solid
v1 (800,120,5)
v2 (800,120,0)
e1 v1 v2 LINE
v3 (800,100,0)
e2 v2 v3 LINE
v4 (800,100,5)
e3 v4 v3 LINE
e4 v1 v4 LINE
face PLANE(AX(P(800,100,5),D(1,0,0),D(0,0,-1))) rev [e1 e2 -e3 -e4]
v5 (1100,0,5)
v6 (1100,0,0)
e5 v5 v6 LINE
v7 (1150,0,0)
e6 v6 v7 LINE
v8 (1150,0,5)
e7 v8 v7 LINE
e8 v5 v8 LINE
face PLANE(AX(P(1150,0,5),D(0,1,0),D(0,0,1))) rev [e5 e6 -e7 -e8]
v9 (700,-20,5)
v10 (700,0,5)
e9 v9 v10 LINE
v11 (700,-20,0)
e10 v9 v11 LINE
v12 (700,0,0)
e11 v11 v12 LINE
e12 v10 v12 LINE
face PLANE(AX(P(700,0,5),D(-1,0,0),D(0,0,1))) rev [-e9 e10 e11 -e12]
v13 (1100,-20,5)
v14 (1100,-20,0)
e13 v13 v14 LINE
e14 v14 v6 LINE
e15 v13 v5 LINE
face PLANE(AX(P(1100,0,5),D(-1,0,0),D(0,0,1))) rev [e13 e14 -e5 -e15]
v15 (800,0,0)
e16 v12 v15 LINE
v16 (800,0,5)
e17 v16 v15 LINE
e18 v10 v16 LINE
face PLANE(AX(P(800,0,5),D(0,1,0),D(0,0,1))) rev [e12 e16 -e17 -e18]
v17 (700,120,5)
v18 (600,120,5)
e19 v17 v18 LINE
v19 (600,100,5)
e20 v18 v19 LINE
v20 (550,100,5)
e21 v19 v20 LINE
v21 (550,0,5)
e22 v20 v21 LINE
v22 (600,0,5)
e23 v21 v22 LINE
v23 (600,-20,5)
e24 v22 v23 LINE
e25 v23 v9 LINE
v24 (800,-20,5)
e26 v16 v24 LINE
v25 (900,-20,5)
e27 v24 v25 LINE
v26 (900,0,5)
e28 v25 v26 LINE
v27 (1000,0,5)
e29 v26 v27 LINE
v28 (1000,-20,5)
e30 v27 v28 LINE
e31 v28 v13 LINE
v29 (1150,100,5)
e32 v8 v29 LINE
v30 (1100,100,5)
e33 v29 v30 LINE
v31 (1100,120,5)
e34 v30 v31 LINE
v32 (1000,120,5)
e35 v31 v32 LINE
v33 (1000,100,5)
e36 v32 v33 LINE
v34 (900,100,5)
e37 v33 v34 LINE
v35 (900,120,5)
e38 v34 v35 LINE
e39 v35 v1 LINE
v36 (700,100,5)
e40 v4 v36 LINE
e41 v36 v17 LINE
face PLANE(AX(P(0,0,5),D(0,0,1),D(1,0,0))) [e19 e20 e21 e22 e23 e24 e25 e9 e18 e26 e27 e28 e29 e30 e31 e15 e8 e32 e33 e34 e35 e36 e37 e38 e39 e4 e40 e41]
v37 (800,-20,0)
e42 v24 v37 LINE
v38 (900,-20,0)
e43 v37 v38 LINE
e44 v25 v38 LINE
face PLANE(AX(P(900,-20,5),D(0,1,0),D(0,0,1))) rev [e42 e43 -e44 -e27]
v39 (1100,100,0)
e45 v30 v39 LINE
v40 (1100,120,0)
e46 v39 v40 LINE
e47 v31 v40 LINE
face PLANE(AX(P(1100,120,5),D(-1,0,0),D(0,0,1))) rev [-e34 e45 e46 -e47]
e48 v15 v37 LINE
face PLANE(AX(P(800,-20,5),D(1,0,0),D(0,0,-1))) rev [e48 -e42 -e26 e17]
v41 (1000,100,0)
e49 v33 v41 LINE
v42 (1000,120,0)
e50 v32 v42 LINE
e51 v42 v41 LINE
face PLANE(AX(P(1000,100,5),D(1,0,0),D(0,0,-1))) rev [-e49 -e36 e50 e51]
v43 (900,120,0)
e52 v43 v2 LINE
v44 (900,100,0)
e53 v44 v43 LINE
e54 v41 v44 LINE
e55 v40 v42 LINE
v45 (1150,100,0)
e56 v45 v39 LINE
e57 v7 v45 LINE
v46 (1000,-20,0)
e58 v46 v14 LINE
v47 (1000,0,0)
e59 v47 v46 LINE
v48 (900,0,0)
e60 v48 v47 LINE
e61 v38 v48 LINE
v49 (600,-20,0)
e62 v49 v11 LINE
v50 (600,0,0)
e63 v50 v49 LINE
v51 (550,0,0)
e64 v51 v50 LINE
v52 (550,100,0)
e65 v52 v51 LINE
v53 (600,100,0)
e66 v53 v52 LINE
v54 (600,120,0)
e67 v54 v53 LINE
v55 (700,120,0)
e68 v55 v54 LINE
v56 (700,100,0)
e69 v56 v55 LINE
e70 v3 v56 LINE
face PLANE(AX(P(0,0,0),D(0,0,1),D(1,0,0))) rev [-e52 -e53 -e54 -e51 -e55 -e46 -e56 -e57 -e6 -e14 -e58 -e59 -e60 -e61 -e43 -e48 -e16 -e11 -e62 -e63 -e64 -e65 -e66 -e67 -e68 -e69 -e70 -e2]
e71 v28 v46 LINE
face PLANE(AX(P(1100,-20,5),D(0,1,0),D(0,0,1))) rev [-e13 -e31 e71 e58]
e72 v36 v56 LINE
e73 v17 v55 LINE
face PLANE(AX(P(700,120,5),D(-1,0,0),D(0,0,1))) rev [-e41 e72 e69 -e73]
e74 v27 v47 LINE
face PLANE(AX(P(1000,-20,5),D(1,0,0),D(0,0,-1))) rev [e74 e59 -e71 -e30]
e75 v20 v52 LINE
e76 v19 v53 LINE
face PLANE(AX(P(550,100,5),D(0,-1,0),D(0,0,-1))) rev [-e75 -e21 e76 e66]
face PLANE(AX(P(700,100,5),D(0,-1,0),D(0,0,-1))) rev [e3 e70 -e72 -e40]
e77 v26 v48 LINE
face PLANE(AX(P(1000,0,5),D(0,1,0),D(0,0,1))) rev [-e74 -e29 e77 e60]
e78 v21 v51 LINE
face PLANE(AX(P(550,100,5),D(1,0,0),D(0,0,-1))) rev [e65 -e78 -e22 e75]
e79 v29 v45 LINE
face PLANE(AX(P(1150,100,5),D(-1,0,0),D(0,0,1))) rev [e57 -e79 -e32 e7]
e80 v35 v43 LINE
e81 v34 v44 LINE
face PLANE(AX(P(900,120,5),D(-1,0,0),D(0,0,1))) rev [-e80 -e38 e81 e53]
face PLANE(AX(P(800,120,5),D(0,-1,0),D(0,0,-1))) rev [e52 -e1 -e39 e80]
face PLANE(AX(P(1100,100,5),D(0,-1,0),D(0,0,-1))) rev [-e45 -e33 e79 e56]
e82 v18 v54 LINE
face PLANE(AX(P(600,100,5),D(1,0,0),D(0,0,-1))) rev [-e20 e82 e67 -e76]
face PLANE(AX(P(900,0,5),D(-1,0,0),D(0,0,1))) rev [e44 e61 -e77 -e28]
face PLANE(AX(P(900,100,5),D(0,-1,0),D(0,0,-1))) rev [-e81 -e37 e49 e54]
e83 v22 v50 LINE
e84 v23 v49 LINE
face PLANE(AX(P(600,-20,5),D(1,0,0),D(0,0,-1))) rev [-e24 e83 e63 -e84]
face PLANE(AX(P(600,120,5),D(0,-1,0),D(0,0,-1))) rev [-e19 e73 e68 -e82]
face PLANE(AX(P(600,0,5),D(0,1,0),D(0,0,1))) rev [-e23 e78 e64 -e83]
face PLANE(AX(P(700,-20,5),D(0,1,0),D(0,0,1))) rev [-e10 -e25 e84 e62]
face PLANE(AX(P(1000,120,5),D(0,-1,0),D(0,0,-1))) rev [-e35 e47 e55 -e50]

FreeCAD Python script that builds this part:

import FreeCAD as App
import Part
import Sketcher

doc = App.newDocument("Part")
body = doc.addObject("PartDesign::Body", "Body")

sketch1 = body.newObject("Sketcher::SketchObject", "Sketch")
sketch1.AttachmentSupport = (doc.getObject("XY_Plane"), [""])
sketch1.MapMode = "FlatFace"
sketch1.addGeometry(Part.LineSegment(App.Vector(600, 100, 0), App.Vector(550, 100, 0)), False)
sketch1.addGeometry(Part.LineSegment(App.Vector(550, 100, 0), App.Vector(550, 0, 0)), False)
sketch1.addGeometry(Part.LineSegment(App.Vector(550, 0, 0), App.Vector(600, 0, 0)), False)
sketch1.addGeometry(Part.LineSegment(App.Vector(600, 0, 0), App.Vector(600, -20, 0)), False)
sketch1.addGeometry(Part.LineSegment(App.Vector(600, -20, 0), App.Vector(700, -20, 0)), False)
sketch1.addGeometry(Part.LineSegment(App.Vector(700, -20, 0), App.Vector(700, 0, 0)), False)
sketch1.addGeometry(Part.LineSegment(App.Vector(700, 0, 0), App.Vector(800, 0, 0)), False)
sketch1.addGeometry(Part.LineSegment(App.Vector(800, 0, 0), App.Vector(800, -20, 0)), False)
sketch1.addGeometry(Part.LineSegment(App.Vector(800, -20, 0), App.Vector(900, -20, 0)), False)
sketch1.addGeometry(Part.LineSegment(App.Vector(900, -20, 0), App.Vector(900, 0, 0)), False)
sketch1.addGeometry(Part.LineSegment(App.Vector(900, 0, 0), App.Vector(1000, 0, 0)), False)
sketch1.addGeometry(Part.LineSegment(App.Vector(1000, 0, 0), App.Vector(1000, -20, 0)), False)
sketch1.addGeometry(Part.LineSegment(App.Vector(1000, -20, 0), App.Vector(1100, -20, 0)), False)
sketch1.addGeometry(Part.LineSegment(App.Vector(1100, -20, 0), App.Vector(1100, 0, 0)), False)
sketch1.addGeometry(Part.LineSegment(App.Vector(1100, 0, 0), App.Vector(1150, 0, 0)), False)
sketch1.addGeometry(Part.LineSegment(App.Vector(1150, 0, 0), App.Vector(1150, 100, 0)), False)
sketch1.addGeometry(Part.LineSegment(App.Vector(1150, 100, 0), App.Vector(1100, 100, 0)), False)
sketch1.addGeometry(Part.LineSegment(App.Vector(1100, 100, 0), App.Vector(1100, 120, 0)), False)
sketch1.addGeometry(Part.LineSegment(App.Vector(1100, 120, 0), App.Vector(1000, 120, 0)), False)
sketch1.addGeometry(Part.LineSegment(App.Vector(1000, 120, 0), App.Vector(1000, 100, 0)), False)
sketch1.addGeometry(Part.LineSegment(App.Vector(1000, 100, 0), App.Vector(900, 100, 0)), False)
sketch1.addGeometry(Part.LineSegment(App.Vector(900, 100, 0), App.Vector(900, 120, 0)), False)
sketch1.addGeometry(Part.LineSegment(App.Vector(900, 120, 0), App.Vector(800, 120, 0)), False)
sketch1.addGeometry(Part.LineSegment(App.Vector(800, 120, 0), App.Vector(800, 100, 0)), False)
sketch1.addGeometry(Part.LineSegment(App.Vector(800, 100, 0), App.Vector(700, 100, 0)), False)
sketch1.addGeometry(Part.LineSegment(App.Vector(700, 100, 0), App.Vector(700, 120, 0)), False)
sketch1.addGeometry(Part.LineSegment(App.Vector(700, 120, 0), App.Vector(600, 120, 0)), False)
sketch1.addGeometry(Part.LineSegment(App.Vector(600, 120, 0), App.Vector(600, 100, 0)), False)
sketch1.addConstraint(Sketcher.Constraint("Coincident", 0, 2, 1, 1))
sketch1.addConstraint(Sketcher.Constraint("Coincident", 1, 2, 2, 1))
sketch1.addConstraint(Sketcher.Constraint("Coincident", 2, 2, 3, 1))
sketch1.addConstraint(Sketcher.Constraint("Coincident", 3, 2, 4, 1))
sketch1.addConstraint(Sketcher.Constraint("Coincident", 4, 2, 5, 1))
sketch1.addConstraint(Sketcher.Constraint("Coincident", 5, 2, 6, 1))
sketch1.addConstraint(Sketcher.Constraint("Coincident", 6, 2, 7, 1))
sketch1.addConstraint(Sketcher.Constraint("Coincident", 7, 2, 8, 1))
sketch1.addConstraint(Sketcher.Constraint("Coincident", 8, 2, 9, 1))
sketch1.addConstraint(Sketcher.Constraint("Coincident", 9, 2, 10, 1))
sketch1.addConstraint(Sketcher.Constraint("Coincident", 10, 2, 11, 1))
sketch1.addConstraint(Sketcher.Constraint("Coincident", 11, 2, 12, 1))
sketch1.addConstraint(Sketcher.Constraint("Coincident", 12, 2, 13, 1))
sketch1.addConstraint(Sketcher.Constraint("Coincident", 13, 2, 14, 1))
sketch1.addConstraint(Sketcher.Constraint("Coincident", 14, 2, 15, 1))
sketch1.addConstraint(Sketcher.Constraint("Coincident", 15, 2, 16, 1))
sketch1.addConstraint(Sketcher.Constraint("Coincident", 16, 2, 17, 1))
sketch1.addConstraint(Sketcher.Constraint("Coincident", 17, 2, 18, 1))
sketch1.addConstraint(Sketcher.Constraint("Coincident", 18, 2, 19, 1))
sketch1.addConstraint(Sketcher.Constraint("Coincident", 19, 2, 20, 1))
sketch1.addConstraint(Sketcher.Constraint("Coincident", 20, 2, 21, 1))
sketch1.addConstraint(Sketcher.Constraint("Coincident", 21, 2, 22, 1))
sketch1.addConstraint(Sketcher.Constraint("Coincident", 22, 2, 23, 1))
sketch1.addConstraint(Sketcher.Constraint("Coincident", 23, 2, 24, 1))
sketch1.addConstraint(Sketcher.Constraint("Coincident", 24, 2, 25, 1))
sketch1.addConstraint(Sketcher.Constraint("Coincident", 25, 2, 26, 1))
sketch1.addConstraint(Sketcher.Constraint("Coincident", 26, 2, 27, 1))
sketch1.addConstraint(Sketcher.Constraint("Coincident", 27, 2, 0, 1))
sketch1.addConstraint(Sketcher.Constraint("Horizontal", 0))
sketch1.addConstraint(Sketcher.Constraint("Vertical", 1))
sketch1.addConstraint(Sketcher.Constraint("Horizontal", 2))
sketch1.addConstraint(Sketcher.Constraint("Vertical", 3))
sketch1.addConstraint(Sketcher.Constraint("Horizontal", 4))
sketch1.addConstraint(Sketcher.Constraint("Vertical", 5))
sketch1.addConstraint(Sketcher.Constraint("Horizontal", 6))
sketch1.addConstraint(Sketcher.Constraint("Vertical", 7))
sketch1.addConstraint(Sketcher.Constraint("Horizontal", 8))
sketch1.addConstraint(Sketcher.Constraint("Vertical", 9))
sketch1.addConstraint(Sketcher.Constraint("Horizontal", 10))
sketch1.addConstraint(Sketcher.Constraint("Vertical", 11))
sketch1.addConstraint(Sketcher.Constraint("Horizontal", 12))
sketch1.addConstraint(Sketcher.Constraint("Vertical", 13))
sketch1.addConstraint(Sketcher.Constraint("Horizontal", 14))
sketch1.addConstraint(Sketcher.Constraint("Vertical", 15))
sketch1.addConstraint(Sketcher.Constraint("Horizontal", 16))
sketch1.addConstraint(Sketcher.Constraint("Vertical", 17))
sketch1.addConstraint(Sketcher.Constraint("Horizontal", 18))
sketch1.addConstraint(Sketcher.Constraint("Vertical", 19))
sketch1.addConstraint(Sketcher.Constraint("Horizontal", 20))
sketch1.addConstraint(Sketcher.Constraint("Vertical", 21))
sketch1.addConstraint(Sketcher.Constraint("Horizontal", 22))
sketch1.addConstraint(Sketcher.Constraint("Vertical", 23))
sketch1.addConstraint(Sketcher.Constraint("Horizontal", 24))
sketch1.addConstraint(Sketcher.Constraint("Vertical", 25))
sketch1.addConstraint(Sketcher.Constraint("Horizontal", 26))
sketch1.addConstraint(Sketcher.Constraint("Vertical", 27))
sketch1.addConstraint(Sketcher.Constraint("PointOnObject", 1, 2, -1))
sketch1.addConstraint(Sketcher.Constraint("PointOnObject", 5, 2, -1))
sketch1.addConstraint(Sketcher.Constraint("PointOnObject", 9, 2, -1))
sketch1.addConstraint(Sketcher.Constraint("PointOnObject", 13, 2, -1))
sketch1.addConstraint(Sketcher.Constraint("Horizontal", 4, 2, 7, 2))
sketch1.addConstraint(Sketcher.Constraint("Horizontal", 8, 2, 11, 2))
sketch1.addConstraint(Sketcher.Constraint("Horizontal", 0, 2, 15, 2))
sketch1.addConstraint(Sketcher.Constraint("Horizontal", 16, 2, 19, 2))
sketch1.addConstraint(Sketcher.Constraint("Horizontal", 18, 2, 21, 2))
sketch1.addConstraint(Sketcher.Constraint("Horizontal", 20, 2, 23, 2))
sketch1.addConstraint(Sketcher.Constraint("Horizontal", 22, 2, 25, 2))
sketch1.addConstraint(Sketcher.Constraint("Vertical", 13, 2, 16, 2))
sketch1.addConstraint(Sketcher.Constraint("Vertical", 11, 2, 18, 2))
sketch1.addConstraint(Sketcher.Constraint("Vertical", 9, 2, 20, 2))
sketch1.addConstraint(Sketcher.Constraint("Vertical", 7, 2, 22, 2))
sketch1.addConstraint(Sketcher.Constraint("Vertical", 5, 2, 24, 2))
sketch1.addConstraint(Sketcher.Constraint("Vertical", 3, 2, 26, 2))
sketch1.addConstraint(Sketcher.Constraint("Equal", 4, 6))
sketch1.addConstraint(Sketcher.Constraint("Equal", 6, 8))
sketch1.addConstraint(Sketcher.Constraint("Equal", 8, 10))
sketch1.addConstraint(Sketcher.Constraint("Equal", 10, 12))
sketch1.addConstraint(Sketcher.Constraint("Equal", 2, 14))
sketch1.addConstraint(Sketcher.Constraint("Equal", 26, 1))
sketch1.addConstraint(Sketcher.Constraint("Equal", 13, 17))
sketch1.addConstraint(Sketcher.Constraint("DistanceX", 0, 2, 0, 1, 50.0))
sketch1.addConstraint(Sketcher.Constraint("DistanceX", 4, 1, 4, 2, 100.0))
sketch1.addConstraint(Sketcher.Constraint("DistanceY", 3, 2, 3, 1, 20.0))
sketch1.addConstraint(Sketcher.Constraint("DistanceX", -1, 1, 0, 2, 550.0))
pad1 = body.newObject("PartDesign::Pad", "Pad")
pad1.Profile = sketch1
pad1.Length = 5

doc.recompute()
